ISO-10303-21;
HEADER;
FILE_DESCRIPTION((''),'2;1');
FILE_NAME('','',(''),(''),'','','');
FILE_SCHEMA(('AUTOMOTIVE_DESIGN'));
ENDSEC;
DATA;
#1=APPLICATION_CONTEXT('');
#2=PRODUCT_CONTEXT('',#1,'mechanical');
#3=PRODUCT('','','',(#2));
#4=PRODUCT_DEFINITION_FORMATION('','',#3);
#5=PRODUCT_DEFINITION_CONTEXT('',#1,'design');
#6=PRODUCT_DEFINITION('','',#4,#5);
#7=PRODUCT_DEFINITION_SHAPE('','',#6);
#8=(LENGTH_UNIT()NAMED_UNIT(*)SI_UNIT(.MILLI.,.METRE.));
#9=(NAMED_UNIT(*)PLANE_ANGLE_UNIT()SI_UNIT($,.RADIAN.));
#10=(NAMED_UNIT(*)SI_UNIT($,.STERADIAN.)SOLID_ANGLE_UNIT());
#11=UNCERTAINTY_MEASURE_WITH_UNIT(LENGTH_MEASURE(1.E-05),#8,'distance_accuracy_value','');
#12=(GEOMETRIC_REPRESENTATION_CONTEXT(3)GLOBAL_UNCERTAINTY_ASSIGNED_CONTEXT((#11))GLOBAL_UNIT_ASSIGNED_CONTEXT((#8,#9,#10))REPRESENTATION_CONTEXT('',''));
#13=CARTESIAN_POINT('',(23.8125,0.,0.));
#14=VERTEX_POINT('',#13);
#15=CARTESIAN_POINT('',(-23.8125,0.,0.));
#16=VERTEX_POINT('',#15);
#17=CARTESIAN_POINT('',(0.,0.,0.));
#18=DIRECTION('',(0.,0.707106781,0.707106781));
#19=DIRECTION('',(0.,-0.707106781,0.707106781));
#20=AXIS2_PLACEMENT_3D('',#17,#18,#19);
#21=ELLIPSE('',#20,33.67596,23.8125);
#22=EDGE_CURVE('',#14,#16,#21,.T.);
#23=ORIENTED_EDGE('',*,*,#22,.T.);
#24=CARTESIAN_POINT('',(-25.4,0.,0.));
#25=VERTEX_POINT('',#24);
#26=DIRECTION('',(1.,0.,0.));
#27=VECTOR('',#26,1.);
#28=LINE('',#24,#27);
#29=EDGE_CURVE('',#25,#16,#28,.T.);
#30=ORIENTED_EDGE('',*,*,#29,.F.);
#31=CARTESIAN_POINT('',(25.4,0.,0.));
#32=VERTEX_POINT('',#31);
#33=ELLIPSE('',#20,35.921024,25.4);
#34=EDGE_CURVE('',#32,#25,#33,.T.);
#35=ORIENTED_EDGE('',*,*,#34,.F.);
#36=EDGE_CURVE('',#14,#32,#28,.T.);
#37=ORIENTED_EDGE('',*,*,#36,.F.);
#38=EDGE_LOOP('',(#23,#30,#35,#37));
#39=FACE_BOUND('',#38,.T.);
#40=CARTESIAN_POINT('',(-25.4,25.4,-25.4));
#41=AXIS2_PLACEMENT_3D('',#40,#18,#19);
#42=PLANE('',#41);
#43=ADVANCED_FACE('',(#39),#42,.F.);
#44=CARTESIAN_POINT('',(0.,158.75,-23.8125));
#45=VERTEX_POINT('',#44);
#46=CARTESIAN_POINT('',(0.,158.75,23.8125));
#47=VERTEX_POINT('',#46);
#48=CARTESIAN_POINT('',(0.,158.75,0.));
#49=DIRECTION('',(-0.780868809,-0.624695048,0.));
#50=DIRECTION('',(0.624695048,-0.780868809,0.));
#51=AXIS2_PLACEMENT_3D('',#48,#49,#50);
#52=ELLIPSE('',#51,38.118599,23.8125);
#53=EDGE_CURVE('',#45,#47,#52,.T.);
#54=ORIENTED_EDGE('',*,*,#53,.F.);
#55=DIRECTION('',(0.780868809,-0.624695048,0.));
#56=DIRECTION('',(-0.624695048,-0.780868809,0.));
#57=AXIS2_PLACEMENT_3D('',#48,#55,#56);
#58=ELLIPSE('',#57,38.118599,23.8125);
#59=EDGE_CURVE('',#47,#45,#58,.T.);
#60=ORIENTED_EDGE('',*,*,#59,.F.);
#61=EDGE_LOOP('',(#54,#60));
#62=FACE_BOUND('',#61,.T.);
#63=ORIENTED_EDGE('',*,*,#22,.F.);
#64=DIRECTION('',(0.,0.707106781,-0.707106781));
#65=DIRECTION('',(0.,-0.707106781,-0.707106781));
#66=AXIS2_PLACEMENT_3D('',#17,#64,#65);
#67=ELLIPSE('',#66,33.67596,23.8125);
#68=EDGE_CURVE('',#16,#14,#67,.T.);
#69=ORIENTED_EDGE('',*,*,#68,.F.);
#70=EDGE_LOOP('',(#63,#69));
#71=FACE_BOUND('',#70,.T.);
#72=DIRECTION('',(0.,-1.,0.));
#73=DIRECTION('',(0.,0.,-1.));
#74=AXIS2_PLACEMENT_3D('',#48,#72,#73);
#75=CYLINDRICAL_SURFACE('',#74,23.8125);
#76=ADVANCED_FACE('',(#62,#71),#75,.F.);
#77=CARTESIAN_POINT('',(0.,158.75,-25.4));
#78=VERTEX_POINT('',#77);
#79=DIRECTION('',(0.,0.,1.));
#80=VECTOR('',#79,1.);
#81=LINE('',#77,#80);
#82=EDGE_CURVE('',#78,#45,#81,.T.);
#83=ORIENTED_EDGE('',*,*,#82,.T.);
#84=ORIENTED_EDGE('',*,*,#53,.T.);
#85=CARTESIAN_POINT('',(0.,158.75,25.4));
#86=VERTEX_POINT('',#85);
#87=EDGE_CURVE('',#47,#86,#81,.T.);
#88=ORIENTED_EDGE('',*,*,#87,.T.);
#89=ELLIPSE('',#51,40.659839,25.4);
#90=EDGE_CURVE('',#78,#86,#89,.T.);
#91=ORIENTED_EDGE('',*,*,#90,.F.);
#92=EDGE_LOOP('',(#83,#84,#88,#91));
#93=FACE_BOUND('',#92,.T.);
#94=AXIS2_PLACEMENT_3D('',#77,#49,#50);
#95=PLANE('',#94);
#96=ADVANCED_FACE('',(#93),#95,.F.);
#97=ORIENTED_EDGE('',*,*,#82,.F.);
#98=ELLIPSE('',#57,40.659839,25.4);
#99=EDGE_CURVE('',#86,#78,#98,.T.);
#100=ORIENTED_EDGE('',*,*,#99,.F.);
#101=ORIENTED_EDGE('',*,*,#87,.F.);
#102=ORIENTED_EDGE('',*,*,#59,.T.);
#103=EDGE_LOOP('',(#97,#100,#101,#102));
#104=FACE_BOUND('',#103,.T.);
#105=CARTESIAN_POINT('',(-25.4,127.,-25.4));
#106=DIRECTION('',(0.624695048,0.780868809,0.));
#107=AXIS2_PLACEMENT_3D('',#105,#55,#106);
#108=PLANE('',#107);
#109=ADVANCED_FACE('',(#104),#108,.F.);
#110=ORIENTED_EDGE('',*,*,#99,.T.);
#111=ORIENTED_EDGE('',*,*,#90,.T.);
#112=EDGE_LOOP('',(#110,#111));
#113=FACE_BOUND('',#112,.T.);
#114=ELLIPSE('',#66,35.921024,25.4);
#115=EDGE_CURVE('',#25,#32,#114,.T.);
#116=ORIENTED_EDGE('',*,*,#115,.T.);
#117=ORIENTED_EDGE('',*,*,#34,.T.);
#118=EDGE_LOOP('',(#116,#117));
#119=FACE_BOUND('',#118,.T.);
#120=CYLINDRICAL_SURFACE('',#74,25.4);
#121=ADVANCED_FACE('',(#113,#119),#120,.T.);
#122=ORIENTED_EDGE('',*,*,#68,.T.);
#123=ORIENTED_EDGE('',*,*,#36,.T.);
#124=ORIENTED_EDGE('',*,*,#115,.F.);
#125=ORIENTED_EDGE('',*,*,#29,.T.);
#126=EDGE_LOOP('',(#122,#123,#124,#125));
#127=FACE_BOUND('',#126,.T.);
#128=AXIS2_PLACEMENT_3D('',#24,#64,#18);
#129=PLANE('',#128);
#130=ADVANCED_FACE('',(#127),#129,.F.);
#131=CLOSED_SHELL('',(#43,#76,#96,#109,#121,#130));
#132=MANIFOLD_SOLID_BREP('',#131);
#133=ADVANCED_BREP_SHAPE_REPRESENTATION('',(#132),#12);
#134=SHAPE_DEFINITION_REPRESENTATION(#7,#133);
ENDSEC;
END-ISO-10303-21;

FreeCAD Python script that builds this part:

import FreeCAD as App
import Part
import Sketcher
Q = App.Units.Quantity

doc = App.newDocument("Part")
body = doc.addObject("PartDesign::Body", "Body")

sketch1 = body.newObject("Sketcher::SketchObject", "Sketch")
sketch1.AttachmentSupport = (doc.getObject("XZ_Plane"), [""])
sketch1.MapMode = "FlatFace"
sketch1.addGeometry([
    Part.Circle(App.Vector(0, 0, 0), App.Vector(0, 0, 1), 25),
    Part.Circle(App.Vector(0, 0, 0), App.Vector(0, 0, 1), 24),
], False)
sketch1.addConstraint([
    Sketcher.Constraint("Coincident", 0, 3, -1, 1),
    Sketcher.Constraint("Coincident", 1, 3, -1, 1),
    Sketcher.Constraint("Diameter", 0, Q("2 in")),
    Sketcher.Constraint("Diameter", 1, Q("1.875 in")),
])
pad1 = body.newObject("PartDesign::Pad", "Pad")
pad1.Profile = sketch1
pad1.Length = Q("6.25 in")
pad1.Reversed = True

sketch2 = body.newObject("Sketcher::SketchObject", "Sketch001")
sketch2.AttachmentSupport = (doc.getObject("XY_Plane"), [""])
sketch2.MapMode = "FlatFace"
sketch2.addGeometry([
    Part.LineSegment(App.Vector(25, 127, 0), App.Vector(25, 159, 0)),
    Part.LineSegment(App.Vector(25, 159, 0), App.Vector(-1, 167, 0)),
    Part.LineSegment(App.Vector(-1, 167, 0), App.Vector(-25, 159, 0)),
    Part.LineSegment(App.Vector(-25, 159, 0), App.Vector(-25, 127, 0)),
    Part.LineSegment(App.Vector(-25, 127, 0), App.Vector(0, 159, 0)),
    Part.LineSegment(App.Vector(0, 159, 0), App.Vector(25, 127, 0)),
], False)
sketch2.addConstraint([
    Sketcher.Constraint("Coincident", 0, 2, 1, 1),
    Sketcher.Constraint("Coincident", 1, 2, 2, 1),
    Sketcher.Constraint("Coincident", 2, 2, 3, 1),
    Sketcher.Constraint("Coincident", 3, 2, 4, 1),
    Sketcher.Constraint("Coincident", 4, 2, 5, 1),
    Sketcher.Constraint("Coincident", 5, 2, 0, 1),
    Sketcher.Constraint("Vertical", 0),
    Sketcher.Constraint("Vertical", 3),
    Sketcher.Constraint("Symmetric", 0, 2, 2, 2, -2),
    Sketcher.Constraint("PointOnObject", 4, 2, -2),
    Sketcher.Constraint("Horizontal", 2, 2, 4, 2),
    Sketcher.Constraint("Horizontal", 3, 2, 5, 2),
    Sketcher.Constraint("DistanceX", -1, 1, 0, 2, Q("1 in")),
    Sketcher.Constraint("DistanceY", -1, 1, 3, 2, Q("5 in")),
    Sketcher.Constraint("DistanceY", 0, 1, 0, 2, Q("1.25 in")),
    Sketcher.Constraint("Distance", 1, Q("27.487202 mm")),
    Sketcher.Constraint("DistanceY", -1, 1, 1, 2, Q("166.54049 mm")),
])
pocket1 = body.newObject("PartDesign::Pocket", "Pocket")
pocket1.Profile = sketch2
pocket1.Type = "ThroughAll"
pocket1.Midplane = True

sketch3 = body.newObject("Sketcher::SketchObject", "Sketch002")
sketch3.AttachmentSupport = (doc.getObject("YZ_Plane"), [""])
sketch3.MapMode = "FlatFace"
sketch3.addGeometry([
    Part.LineSegment(App.Vector(25, 25, 0), App.Vector(0, 25, 0)),
    Part.LineSegment(App.Vector(0, 25, 0), App.Vector(-12, 0, 0)),
    Part.LineSegment(App.Vector(-12, 0, 0), App.Vector(0, -25, 0)),
    Part.LineSegment(App.Vector(0, -25, 0), App.Vector(25, -25, 0)),
    Part.LineSegment(App.Vector(25, -25, 0), App.Vector(0, 0, 0)),
    Part.LineSegment(App.Vector(0, 0, 0), App.Vector(25, 25, 0)),
], False)
sketch3.addConstraint([
    Sketcher.Constraint("Coincident", 0, 2, 1, 1),
    Sketcher.Constraint("Coincident", 1, 2, 2, 1),
    Sketcher.Constraint("Coincident", 2, 2, 3, 1),
    Sketcher.Constraint("Coincident", 3, 2, 4, 1),
    Sketcher.Constraint("Coincident", 4, 2, 5, 1),
    Sketcher.Constraint("Coincident", 5, 2, 0, 1),
    Sketcher.Constraint("Horizontal", 0),
    Sketcher.Constraint("Horizontal", 3),
    Sketcher.Constraint("Coincident", 4, 2, -1, 1),
    Sketcher.Constraint("Symmetric", 0, 2, 2, 2, -1, 1),
    Sketcher.Constraint("PointOnObject", 0, 2, -2),
    Sketcher.Constraint("Perpendicular", 4, 5),
    Sketcher.Constraint("Vertical", 3, 2, 5, 2),
    Sketcher.Constraint("DistanceX", 0, 2, 0, 1, Q("1 in")),
    Sketcher.Constraint("Distance", 1, Q("28.169835 mm")),
    Sketcher.Constraint("Distance", 2, Q("28.110926 mm")),
])
pocket2 = body.newObject("PartDesign::Pocket", "Pocket001")
pocket2.Profile = sketch3
pocket2.Type = "ThroughAll"
pocket2.Midplane = True

doc.recompute()
